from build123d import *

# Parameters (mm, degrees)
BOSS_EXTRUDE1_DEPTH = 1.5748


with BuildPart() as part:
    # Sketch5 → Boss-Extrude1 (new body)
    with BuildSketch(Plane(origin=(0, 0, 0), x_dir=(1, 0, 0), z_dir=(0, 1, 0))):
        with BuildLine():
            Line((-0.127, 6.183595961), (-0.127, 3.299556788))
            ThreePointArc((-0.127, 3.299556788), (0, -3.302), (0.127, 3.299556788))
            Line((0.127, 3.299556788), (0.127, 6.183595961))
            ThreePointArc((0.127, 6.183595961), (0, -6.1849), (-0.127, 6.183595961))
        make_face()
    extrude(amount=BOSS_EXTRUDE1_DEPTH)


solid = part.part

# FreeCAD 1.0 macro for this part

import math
import FreeCAD as App
import Part
import Sketcher

V = App.Vector
Q = App.Units.Quantity

doc = App.newDocument("Part")
params = doc.addObject("Spreadsheet::Sheet", "Params")
for row, (alias, value) in enumerate([
    ("sketch1_radius", "0.13 in"),
    ("pad1_length", "0.062 in"),
], start=1):
    params.set(f"A{row}", alias)
    params.set(f"B{row}", "=" + value)
    params.setAlias(f"B{row}", alias)

body = doc.addObject("PartDesign::Body", "Body")

sketch1 = body.newObject("Sketcher::SketchObject", "Sketch")
sketch1.AttachmentSupport = (doc.getObject("XZ_Plane"), [""])
sketch1.MapMode = "FlatFace"
sketch1.addGeometry([
    Part.LineSegment(V(-0.127, -3.299557, 0), V(-0.127, -6.183596, 0)),
    Part.ArcOfCircle(Part.Circle(V(0, 0, 0), V(0, 0, 1), 6.1849), math.radians(-88.823413), math.radians(268.823413)),
    Part.LineSegment(V(0.127, -6.183596, 0), V(0.127, -3.299557, 0)),
    Part.ArcOfCircle(Part.Circle(V(0, 0, 0), V(0, 0, 1), 3.302), math.radians(-87.795772), math.radians(267.795772)),
], False)
sketch1.addConstraint([
    Sketcher.Constraint("Coincident", 0, 2, 1, 2),
    Sketcher.Constraint("Coincident", 1, 1, 2, 1),
    Sketcher.Constraint("Coincident", 2, 2, 3, 1),
    Sketcher.Constraint("Coincident", 3, 2, 0, 1),
    Sketcher.Constraint("Vertical", 0),
    Sketcher.Constraint("Vertical", 2),
    Sketcher.Constraint("Coincident", 1, 3, -1, 1),
    Sketcher.Constraint("Coincident", 3, 3, -1, 1),
    Sketcher.Constraint("Horizontal", 0, 2, 1, 1),
    Sketcher.Constraint("Radius", 3, Q("0.13 in")),
    Sketcher.Constraint("Radius", 1, Q("0.2435 in")),
    Sketcher.Constraint("DistanceX", 0, 2, 1, 1, Q("0.01 in")),
])
sketch1.setExpression("Constraints[9]", "Params.sketch1_radius")
pad1 = body.newObject("PartDesign::Pad", "Pad")
pad1.Profile = sketch1
pad1.setExpression("Length", "Params.pad1_length")
pad1.Reversed = True

doc.recompute()
